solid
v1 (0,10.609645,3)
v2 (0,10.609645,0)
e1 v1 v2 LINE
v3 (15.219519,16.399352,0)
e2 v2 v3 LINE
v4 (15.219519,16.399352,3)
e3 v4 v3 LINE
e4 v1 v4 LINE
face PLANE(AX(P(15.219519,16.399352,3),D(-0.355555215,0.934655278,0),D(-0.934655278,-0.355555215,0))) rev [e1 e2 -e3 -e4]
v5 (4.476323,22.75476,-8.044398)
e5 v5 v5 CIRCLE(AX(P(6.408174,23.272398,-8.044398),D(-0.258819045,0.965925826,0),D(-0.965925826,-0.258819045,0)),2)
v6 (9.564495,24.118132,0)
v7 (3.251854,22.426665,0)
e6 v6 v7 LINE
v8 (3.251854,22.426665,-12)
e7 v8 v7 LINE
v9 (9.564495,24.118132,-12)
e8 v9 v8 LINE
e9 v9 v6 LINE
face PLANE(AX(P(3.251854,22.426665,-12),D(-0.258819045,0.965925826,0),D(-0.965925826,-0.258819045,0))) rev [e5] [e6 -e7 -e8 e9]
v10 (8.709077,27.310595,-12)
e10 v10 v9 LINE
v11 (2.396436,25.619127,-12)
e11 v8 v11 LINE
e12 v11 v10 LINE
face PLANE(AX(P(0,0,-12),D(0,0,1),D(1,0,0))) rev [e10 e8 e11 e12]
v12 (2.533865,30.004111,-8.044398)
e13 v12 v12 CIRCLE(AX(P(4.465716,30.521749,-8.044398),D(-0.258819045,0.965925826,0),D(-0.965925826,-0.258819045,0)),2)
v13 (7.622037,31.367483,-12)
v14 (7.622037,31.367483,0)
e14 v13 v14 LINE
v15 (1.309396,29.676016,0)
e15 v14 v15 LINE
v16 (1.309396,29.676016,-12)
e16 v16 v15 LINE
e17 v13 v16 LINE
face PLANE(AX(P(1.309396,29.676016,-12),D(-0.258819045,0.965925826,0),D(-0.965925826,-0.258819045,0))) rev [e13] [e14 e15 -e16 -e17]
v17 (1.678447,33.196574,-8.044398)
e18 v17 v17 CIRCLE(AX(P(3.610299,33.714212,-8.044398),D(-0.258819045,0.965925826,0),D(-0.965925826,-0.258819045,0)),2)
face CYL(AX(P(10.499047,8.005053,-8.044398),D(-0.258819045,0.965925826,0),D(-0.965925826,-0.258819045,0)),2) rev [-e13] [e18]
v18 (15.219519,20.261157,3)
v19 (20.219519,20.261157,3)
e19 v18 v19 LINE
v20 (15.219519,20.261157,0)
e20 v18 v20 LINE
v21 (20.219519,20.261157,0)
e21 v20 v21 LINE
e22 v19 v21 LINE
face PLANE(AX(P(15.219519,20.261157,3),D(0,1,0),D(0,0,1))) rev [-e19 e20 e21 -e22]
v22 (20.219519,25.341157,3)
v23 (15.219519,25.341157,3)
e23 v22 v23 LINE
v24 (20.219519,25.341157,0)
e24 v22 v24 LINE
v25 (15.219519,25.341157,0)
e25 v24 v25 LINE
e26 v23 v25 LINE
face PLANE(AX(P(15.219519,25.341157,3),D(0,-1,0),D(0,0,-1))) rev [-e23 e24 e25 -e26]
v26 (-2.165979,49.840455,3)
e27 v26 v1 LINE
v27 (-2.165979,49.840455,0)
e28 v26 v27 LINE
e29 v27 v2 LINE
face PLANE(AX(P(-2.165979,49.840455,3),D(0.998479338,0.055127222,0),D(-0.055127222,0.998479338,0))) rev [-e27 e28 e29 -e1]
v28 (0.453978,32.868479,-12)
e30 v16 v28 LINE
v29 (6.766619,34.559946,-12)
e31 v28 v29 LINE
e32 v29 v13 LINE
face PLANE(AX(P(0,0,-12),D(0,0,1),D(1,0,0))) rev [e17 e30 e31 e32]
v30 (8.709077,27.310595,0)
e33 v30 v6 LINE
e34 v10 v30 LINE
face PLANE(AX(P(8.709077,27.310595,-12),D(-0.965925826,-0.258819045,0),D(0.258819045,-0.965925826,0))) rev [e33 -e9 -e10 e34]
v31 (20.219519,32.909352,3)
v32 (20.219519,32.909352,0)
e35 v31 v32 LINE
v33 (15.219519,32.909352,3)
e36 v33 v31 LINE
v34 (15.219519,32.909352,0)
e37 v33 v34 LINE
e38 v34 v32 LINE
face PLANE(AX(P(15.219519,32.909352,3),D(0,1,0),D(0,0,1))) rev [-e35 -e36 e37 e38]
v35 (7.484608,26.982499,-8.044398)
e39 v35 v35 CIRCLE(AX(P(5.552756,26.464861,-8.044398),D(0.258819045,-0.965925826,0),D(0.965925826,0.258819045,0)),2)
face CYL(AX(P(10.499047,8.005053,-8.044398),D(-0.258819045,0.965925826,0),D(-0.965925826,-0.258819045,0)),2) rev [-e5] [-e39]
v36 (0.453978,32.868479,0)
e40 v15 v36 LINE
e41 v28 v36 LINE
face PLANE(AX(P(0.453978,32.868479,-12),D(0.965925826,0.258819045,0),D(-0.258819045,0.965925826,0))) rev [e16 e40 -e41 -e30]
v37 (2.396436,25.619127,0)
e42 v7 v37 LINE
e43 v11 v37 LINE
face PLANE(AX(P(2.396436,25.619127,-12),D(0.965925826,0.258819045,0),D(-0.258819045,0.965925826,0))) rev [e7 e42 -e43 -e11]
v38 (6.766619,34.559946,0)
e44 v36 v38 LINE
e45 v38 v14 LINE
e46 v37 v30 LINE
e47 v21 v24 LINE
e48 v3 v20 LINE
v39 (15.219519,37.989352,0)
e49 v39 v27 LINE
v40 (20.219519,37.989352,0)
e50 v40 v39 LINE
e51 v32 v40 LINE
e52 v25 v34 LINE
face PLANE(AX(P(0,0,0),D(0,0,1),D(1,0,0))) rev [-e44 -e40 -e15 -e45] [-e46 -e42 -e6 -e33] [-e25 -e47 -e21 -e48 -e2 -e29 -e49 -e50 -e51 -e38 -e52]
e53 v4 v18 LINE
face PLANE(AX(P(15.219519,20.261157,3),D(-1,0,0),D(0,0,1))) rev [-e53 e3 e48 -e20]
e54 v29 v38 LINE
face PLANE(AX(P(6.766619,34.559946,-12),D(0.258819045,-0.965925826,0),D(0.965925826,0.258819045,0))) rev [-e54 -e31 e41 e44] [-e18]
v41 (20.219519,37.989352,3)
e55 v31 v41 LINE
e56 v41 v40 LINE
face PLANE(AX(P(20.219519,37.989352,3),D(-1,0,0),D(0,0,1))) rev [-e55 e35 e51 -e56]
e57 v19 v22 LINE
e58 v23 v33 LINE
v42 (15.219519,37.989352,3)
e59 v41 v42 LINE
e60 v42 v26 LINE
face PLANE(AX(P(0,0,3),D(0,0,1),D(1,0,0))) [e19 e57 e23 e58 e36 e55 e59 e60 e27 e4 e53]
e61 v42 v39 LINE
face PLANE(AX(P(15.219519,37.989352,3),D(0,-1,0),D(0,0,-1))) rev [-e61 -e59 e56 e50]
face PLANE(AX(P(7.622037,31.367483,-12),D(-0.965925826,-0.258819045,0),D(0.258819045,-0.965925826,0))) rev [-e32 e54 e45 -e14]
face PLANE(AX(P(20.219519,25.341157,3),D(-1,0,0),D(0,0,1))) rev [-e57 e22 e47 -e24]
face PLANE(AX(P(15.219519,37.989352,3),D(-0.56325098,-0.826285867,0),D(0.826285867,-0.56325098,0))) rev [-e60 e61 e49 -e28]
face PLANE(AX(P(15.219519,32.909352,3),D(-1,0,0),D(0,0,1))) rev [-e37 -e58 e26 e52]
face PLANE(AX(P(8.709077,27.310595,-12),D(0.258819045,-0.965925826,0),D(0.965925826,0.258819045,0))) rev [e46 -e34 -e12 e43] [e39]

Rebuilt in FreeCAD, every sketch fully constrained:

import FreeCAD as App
import Part
import Sketcher

V = App.Vector
Q = App.Units.Quantity


def add_polygon(sketch, points):
    """Adds a closed chain of lines whose ends are joined by coincident constraints."""
    first, n = sketch.GeometryCount, len(points)
    for a, b in zip(points, points[1:] + points[:1]):
        sketch.addGeometry(Part.LineSegment(App.Vector(*a, 0), App.Vector(*b, 0)), False)
    for i in range(n):
        sketch.addConstraint(Sketcher.Constraint("Coincident", first + i, 2, first + (i + 1) % n, 1))

doc = App.newDocument("Part")
body = doc.addObject("PartDesign::Body", "Body")

# Sketch on XY plane
sketch1 = body.newObject("Sketcher::SketchObject", "Sketch")
sketch1.AttachmentSupport = (doc.getObject("XY_Plane"), [""])
sketch1.MapMode = "FlatFace"
add_polygon(sketch1, [(20.2, 38), (15.2, 38), (-2.2, 49.8), (0, 10.6), (15.2, 16.4), (15.2, 20.3), (20.2, 20.3), (20.2, 25.3), (15.2, 25.3), (15.2, 32.9), (20.2, 32.9)])  # lines 0-10
sketch1.addConstraint(Sketcher.Constraint("Horizontal", 0))
sketch1.addConstraint(Sketcher.Constraint("Vertical", 4))
sketch1.addConstraint(Sketcher.Constraint("Horizontal", 5))
sketch1.addConstraint(Sketcher.Constraint("Vertical", 6))
sketch1.addConstraint(Sketcher.Constraint("Horizontal", 7))
sketch1.addConstraint(Sketcher.Constraint("Vertical", 8))
sketch1.addConstraint(Sketcher.Constraint("Horizontal", 9))
sketch1.addConstraint(Sketcher.Constraint("Vertical", 10))
sketch1.addConstraint(Sketcher.Constraint("PointOnObject", 2, 2, -2))
sketch1.addConstraint(Sketcher.Constraint("Vertical", 0, 2, 3, 2))
sketch1.addConstraint(Sketcher.Constraint("Vertical", 4, 2, 7, 2))
sketch1.addConstraint(Sketcher.Constraint("Vertical", 6, 2, 9, 2))
sketch1.addConstraint(Sketcher.Constraint("Equal", 6, 10))
sketch1.addConstraint(Sketcher.Constraint("DistanceX", 0, 2, 0, 1, 5.0))
sketch1.addConstraint(Sketcher.Constraint("DistanceY", 6, 1, 6, 2, 5.08))
sketch1.addConstraint(Sketcher.Constraint("DistanceY", 3, 2, 0, 2, 21.59))
sketch1.addConstraint(Sketcher.Constraint("DistanceX", 1, 2, 0, 2, 17.385499))
sketch1.addConstraint(Sketcher.Constraint("DistanceY", 4, 1, 4, 2, 3.861806))
sketch1.addConstraint(Sketcher.Constraint("DistanceX", -1, 1, 0, 2, 15.219519))
sketch1.addConstraint(Sketcher.Constraint("DistanceY", -1, 1, 0, 2, 37.989352))
sketch1.addConstraint(Sketcher.Constraint("DistanceY", 2, 2, 1, 2, 39.23081))
sketch1.addConstraint(Sketcher.Constraint("DistanceY", 2, 2, 4, 2, 9.651512))
pad1 = body.newObject("PartDesign::Pad", "Pad")
pad1.Profile = sketch1
pad1.Length = 3

# Sketch on XY plane
sketch2 = body.newObject("Sketcher::SketchObject", "Sketch001")
sketch2.AttachmentSupport = (doc.getObject("XY_Plane"), [""])
sketch2.MapMode = "FlatFace"
add_polygon(sketch2, [(6.8, 34.6), (7.6, 31.4), (1.3, 29.7), (0.5, 32.9)])  # lines 0-3
add_polygon(sketch2, [(2.4, 25.6), (8.7, 27.3), (9.6, 24.1), (3.3, 22.4)])  # lines 4-7
sketch2.addConstraint(Sketcher.Constraint("Perpendicular", 0, 1))
sketch2.addConstraint(Sketcher.Constraint("Perpendicular", 1, 2))
sketch2.addConstraint(Sketcher.Constraint("Perpendicular", 2, 3))
sketch2.addConstraint(Sketcher.Constraint("Parallel", 3, 4))
sketch2.addConstraint(Sketcher.Constraint("Perpendicular", 4, 5))
sketch2.addConstraint(Sketcher.Constraint("Perpendicular", 5, 6))
sketch2.addConstraint(Sketcher.Constraint("Perpendicular", 6, 7))
sketch2.addConstraint(Sketcher.Constraint("Equal", 3, 4))
sketch2.addConstraint(Sketcher.Constraint("Equal", 2, 5))
sketch2.addConstraint(Sketcher.Constraint("Angle", 0, Q("-75 deg")))
sketch2.addConstraint(Sketcher.Constraint("DistanceX", 2, 2, 4, 2, 8.255099))
sketch2.addConstraint(Sketcher.Constraint("Distance", 0, 3.305081))
sketch2.addConstraint(Sketcher.Constraint("DistanceY", -1, 1, 2, 2, 32.868479))
sketch2.addConstraint(Sketcher.Constraint("DistanceX", -1, 1, 3, 2, 6.766619))
sketch2.addConstraint(Sketcher.Constraint("DistanceY", -1, 1, 5, 2, 24.118132))
sketch2.addConstraint(Sketcher.Constraint("DistanceX", 1, 2, 0, 2, 6.312641))
pad2 = body.newObject("PartDesign::Pad", "Pad001")
pad2.Profile = sketch2
pad2.Length = 12
pad2.Reversed = True

# Sketch on an angled plane
sketch3 = body.newObject("Sketcher::SketchObject", "Sketch002")
sketch3.Placement = App.Placement(V(-8.186709, 30.553214, 0), App.Rotation(V(0.965925826, 0.258819045, 0), V(0, 0, -0.999999999), V(-0.258819045, 0.965925826, 0), "ZXY"))
sketch3.addGeometry(Part.Circle(V(12.2, 8, 0), V(0, 0, 1), 2), False)
sketch3.addConstraint(Sketcher.Constraint("Diameter", 0, 4.0))
sketch3.addConstraint(Sketcher.Constraint("DistanceX", -1, 1, 0, 3, 12.213161))
sketch3.addConstraint(Sketcher.Constraint("DistanceY", -1, 1, 0, 3, 8.044398))
pocket1 = body.newObject("PartDesign::Pocket", "Pocket")
pocket1.Profile = sketch3
pocket1.Type = "ThroughAll"

doc.recompute()
